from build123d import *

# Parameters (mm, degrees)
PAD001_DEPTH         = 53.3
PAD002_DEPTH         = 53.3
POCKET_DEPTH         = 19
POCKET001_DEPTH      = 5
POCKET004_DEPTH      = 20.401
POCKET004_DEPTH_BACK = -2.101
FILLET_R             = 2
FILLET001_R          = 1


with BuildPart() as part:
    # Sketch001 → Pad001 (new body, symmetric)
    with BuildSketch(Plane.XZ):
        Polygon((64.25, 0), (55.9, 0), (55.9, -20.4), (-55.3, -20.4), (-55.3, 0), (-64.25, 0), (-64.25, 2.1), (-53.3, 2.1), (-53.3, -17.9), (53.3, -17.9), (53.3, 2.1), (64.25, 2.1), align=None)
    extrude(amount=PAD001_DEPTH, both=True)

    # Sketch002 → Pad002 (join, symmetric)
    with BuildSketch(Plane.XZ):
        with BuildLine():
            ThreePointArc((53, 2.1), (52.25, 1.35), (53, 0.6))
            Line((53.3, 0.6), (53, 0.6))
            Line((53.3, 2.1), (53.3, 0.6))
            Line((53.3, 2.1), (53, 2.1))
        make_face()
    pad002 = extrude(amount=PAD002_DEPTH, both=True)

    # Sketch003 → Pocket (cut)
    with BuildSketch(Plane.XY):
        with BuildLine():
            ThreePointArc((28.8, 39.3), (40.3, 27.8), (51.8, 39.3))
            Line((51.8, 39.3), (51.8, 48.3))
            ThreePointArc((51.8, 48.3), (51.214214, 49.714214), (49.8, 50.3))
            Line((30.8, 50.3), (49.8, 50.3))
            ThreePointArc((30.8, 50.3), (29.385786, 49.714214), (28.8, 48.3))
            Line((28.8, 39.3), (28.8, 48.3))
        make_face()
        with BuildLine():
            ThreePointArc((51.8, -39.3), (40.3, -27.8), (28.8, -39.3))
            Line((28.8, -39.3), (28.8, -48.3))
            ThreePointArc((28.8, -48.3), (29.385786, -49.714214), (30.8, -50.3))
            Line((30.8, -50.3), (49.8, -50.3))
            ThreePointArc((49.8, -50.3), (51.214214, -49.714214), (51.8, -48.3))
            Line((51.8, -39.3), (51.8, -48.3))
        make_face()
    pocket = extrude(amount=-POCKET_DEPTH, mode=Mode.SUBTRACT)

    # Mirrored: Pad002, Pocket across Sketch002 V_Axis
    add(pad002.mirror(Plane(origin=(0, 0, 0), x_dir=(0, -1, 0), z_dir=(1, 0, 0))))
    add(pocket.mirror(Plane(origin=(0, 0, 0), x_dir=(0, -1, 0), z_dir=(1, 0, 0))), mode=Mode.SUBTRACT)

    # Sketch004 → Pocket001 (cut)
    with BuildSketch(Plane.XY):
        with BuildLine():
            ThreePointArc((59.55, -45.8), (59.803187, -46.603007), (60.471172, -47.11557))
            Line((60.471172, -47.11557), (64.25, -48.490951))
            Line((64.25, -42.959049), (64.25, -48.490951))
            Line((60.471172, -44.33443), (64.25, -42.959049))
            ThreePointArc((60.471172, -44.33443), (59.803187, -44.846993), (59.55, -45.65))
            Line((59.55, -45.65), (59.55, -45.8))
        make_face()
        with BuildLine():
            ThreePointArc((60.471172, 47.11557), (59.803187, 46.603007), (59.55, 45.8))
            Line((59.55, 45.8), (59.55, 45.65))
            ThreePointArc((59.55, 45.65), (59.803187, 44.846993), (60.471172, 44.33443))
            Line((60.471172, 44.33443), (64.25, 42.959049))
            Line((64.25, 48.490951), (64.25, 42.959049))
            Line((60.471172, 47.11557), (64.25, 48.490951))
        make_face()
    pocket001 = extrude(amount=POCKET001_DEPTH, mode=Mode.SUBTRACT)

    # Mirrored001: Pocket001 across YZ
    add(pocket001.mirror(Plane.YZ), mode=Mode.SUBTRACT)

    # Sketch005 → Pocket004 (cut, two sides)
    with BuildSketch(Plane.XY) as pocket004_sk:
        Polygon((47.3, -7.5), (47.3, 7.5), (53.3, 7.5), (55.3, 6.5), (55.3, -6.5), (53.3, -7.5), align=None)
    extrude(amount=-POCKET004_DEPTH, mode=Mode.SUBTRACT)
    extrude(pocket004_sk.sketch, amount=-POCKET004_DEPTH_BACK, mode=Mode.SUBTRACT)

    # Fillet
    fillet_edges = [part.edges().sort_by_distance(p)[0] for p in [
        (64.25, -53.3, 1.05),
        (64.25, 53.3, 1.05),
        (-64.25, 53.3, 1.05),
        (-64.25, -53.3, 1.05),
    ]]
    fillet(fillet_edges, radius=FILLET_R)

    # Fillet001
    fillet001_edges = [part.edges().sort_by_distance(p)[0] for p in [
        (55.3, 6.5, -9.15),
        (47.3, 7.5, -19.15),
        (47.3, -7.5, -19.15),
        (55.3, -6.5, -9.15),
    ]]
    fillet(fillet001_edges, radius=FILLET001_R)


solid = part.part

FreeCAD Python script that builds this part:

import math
import FreeCAD as App
import Part
import Sketcher
Q = App.Units.Quantity


def edges_at(feature, points):
    """Names of the edges that pass closest to the given points."""
    edges = feature.Shape.Edges
    near = lambda p: min(range(len(edges)), key=lambda i: edges[i].distToShape(Part.Vertex(*p))[0])
    return sorted({f"Edge{near(p) + 1}" for p in points})

doc = App.newDocument("Part")
body = doc.addObject("PartDesign::Body", "Body")

# Sketch on XZ plane
sketch1 = doc.addObject("Sketcher::SketchObject", "Sketch")
body.addObject(sketch1)
sketch1.AttachmentSupport = (doc.XZ_Plane, [""])
sketch1.MapMode = "FlatFace"
sketch1.addGeometry(Part.LineSegment(App.Vector(55.9, 0, 0), App.Vector(64.25, 0, 0)), False)
sketch1.addGeometry(Part.LineSegment(App.Vector(64.25, 0, 0), App.Vector(64.25, 2.1, 0)), False)
sketch1.addGeometry(Part.LineSegment(App.Vector(64.25, 2.1, 0), App.Vector(53.3, 2.1, 0)), False)
sketch1.addGeometry(Part.LineSegment(App.Vector(53.3, 2.1, 0), App.Vector(53.3, -17.9, 0)), False)
sketch1.addGeometry(Part.LineSegment(App.Vector(53.3, -17.9, 0), App.Vector(-53.3, -17.9, 0)), False)
sketch1.addGeometry(Part.LineSegment(App.Vector(-53.3, -17.9, 0), App.Vector(-53.3, 2.1, 0)), False)
sketch1.addGeometry(Part.LineSegment(App.Vector(-53.3, 2.1, 0), App.Vector(-64.25, 2.1, 0)), False)
sketch1.addGeometry(Part.LineSegment(App.Vector(-64.25, 2.1, 0), App.Vector(-64.25, 0, 0)), False)
sketch1.addGeometry(Part.LineSegment(App.Vector(-64.25, 0, 0), App.Vector(-55.3, 0, 0)), False)
sketch1.addGeometry(Part.LineSegment(App.Vector(-55.3, 0, 0), App.Vector(-55.3, -20.4, 0)), False)
sketch1.addGeometry(Part.LineSegment(App.Vector(-55.3, -20.4, 0), App.Vector(55.9, -20.4, 0)), False)
sketch1.addGeometry(Part.LineSegment(App.Vector(55.9, -20.4, 0), App.Vector(55.9, 0, 0)), False)
sketch1.addConstraint(Sketcher.Constraint("Coincident", 0, 2, 1, 1))
sketch1.addConstraint(Sketcher.Constraint("Coincident", 1, 2, 2, 1))
sketch1.addConstraint(Sketcher.Constraint("Coincident", 2, 2, 3, 1))
sketch1.addConstraint(Sketcher.Constraint("Coincident", 3, 2, 4, 1))
sketch1.addConstraint(Sketcher.Constraint("Coincident", 4, 2, 5, 1))
sketch1.addConstraint(Sketcher.Constraint("Coincident", 5, 2, 6, 1))
sketch1.addConstraint(Sketcher.Constraint("Coincident", 6, 2, 7, 1))
sketch1.addConstraint(Sketcher.Constraint("Coincident", 7, 2, 8, 1))
sketch1.addConstraint(Sketcher.Constraint("Coincident", 8, 2, 9, 1))
sketch1.addConstraint(Sketcher.Constraint("Coincident", 9, 2, 10, 1))
sketch1.addConstraint(Sketcher.Constraint("Coincident", 10, 2, 11, 1))
sketch1.addConstraint(Sketcher.Constraint("Coincident", 11, 2, 0, 1))
sketch1.addConstraint(Sketcher.Constraint("Horizontal", 0))
sketch1.addConstraint(Sketcher.Constraint("Vertical", 1))
sketch1.addConstraint(Sketcher.Constraint("Horizontal", 2))
sketch1.addConstraint(Sketcher.Constraint("Vertical", 3))
sketch1.addConstraint(Sketcher.Constraint("Horizontal", 4))
sketch1.addConstraint(Sketcher.Constraint("Vertical", 5))
sketch1.addConstraint(Sketcher.Constraint("Horizontal", 6))
sketch1.addConstraint(Sketcher.Constraint("Vertical", 7))
sketch1.addConstraint(Sketcher.Constraint("Horizontal", 8))
sketch1.addConstraint(Sketcher.Constraint("Vertical", 9))
sketch1.addConstraint(Sketcher.Constraint("Horizontal", 10))
sketch1.addConstraint(Sketcher.Constraint("Vertical", 11))
sketch1.addConstraint(Sketcher.Constraint("Symmetric", 0, 2, 7, 2, -1, 1))
sketch1.addConstraint(Sketcher.Constraint("Symmetric", 2, 2, 5, 2, -2))
sketch1.addConstraint(Sketcher.Constraint("PointOnObject", 0, 2, -1))
sketch1.addConstraint(Sketcher.Constraint("DistanceY", 3, 2, 3, 1, 20.0))
sketch1.addConstraint(Sketcher.Constraint("DistanceX", 4, 2, 4, 1, 106.6))
sketch1.addConstraint(Sketcher.Constraint("DistanceX", 10, 1, 10, 2, 111.2))
sketch1.addConstraint(Sketcher.Constraint("DistanceY", 1, 1, 1, 2, 2.1))
sketch1.addConstraint(Sketcher.Constraint("DistanceY", 9, 2, 9, 1, 20.4))
sketch1.addConstraint(Sketcher.Constraint("DistanceX", 8, 2, 5, 2, 2.0))
sketch1.addConstraint(Sketcher.Constraint("DistanceX", 0, 1, 0, 2, 8.35))
pad1 = doc.addObject("PartDesign::Pad", "Pad")
body.addObject(pad1)
pad1.Profile = sketch1
pad1.Length = 106.6
pad1.Midplane = True

# Sketch on XZ plane
sketch2 = doc.addObject("Sketcher::SketchObject", "Sketch001")
body.addObject(sketch2)
sketch2.AttachmentSupport = (doc.XZ_Plane, [""])
sketch2.MapMode = "FlatFace"
sketch2.addGeometry(Part.ArcOfCircle(Part.Circle(App.Vector(53, 1.35, 0), App.Vector(0, 0, 1), 0.75), math.radians(90), math.radians(270)), False)
sketch2.addGeometry(Part.LineSegment(App.Vector(53, 0.6, 0), App.Vector(53.3, 0.6, 0)), False)
sketch2.addGeometry(Part.LineSegment(App.Vector(53.3, 0.6, 0), App.Vector(53.3, 2.1, 0)), False)
sketch2.addGeometry(Part.LineSegment(App.Vector(53.3, 2.1, 0), App.Vector(53, 2.1, 0)), False)
sketch2.addConstraint(Sketcher.Constraint("Tangent", 0, 2, 1, 1))
sketch2.addConstraint(Sketcher.Constraint("Coincident", 1, 2, 2, 1))
sketch2.addConstraint(Sketcher.Constraint("Coincident", 2, 2, 3, 1))
sketch2.addConstraint(Sketcher.Constraint("Tangent", 3, 2, 0, 1))
sketch2.addConstraint(Sketcher.Constraint("Horizontal", 1))
sketch2.addConstraint(Sketcher.Constraint("Vertical", 2))
sketch2.addConstraint(Sketcher.Constraint("Horizontal", 3))
sketch2.addConstraint(Sketcher.Constraint("Radius", 0, 0.75))
sketch2.addConstraint(Sketcher.Constraint("DistanceX", 1, 1, 1, 2, 0.3))
sketch2.addConstraint(Sketcher.Constraint("DistanceX", -1, 1, 0, 3, 53.0))
sketch2.addConstraint(Sketcher.Constraint("DistanceY", -1, 1, 0, 2, 0.6))
pad2 = doc.addObject("PartDesign::Pad", "Pad001")
body.addObject(pad2)
pad2.Profile = sketch2
pad2.Length = 106.6
pad2.Midplane = True

# Sketch on XY plane
sketch3 = doc.addObject("Sketcher::SketchObject", "Sketch002")
body.addObject(sketch3)
sketch3.AttachmentSupport = (doc.XY_Plane, [""])
sketch3.MapMode = "FlatFace"
sketch3.addGeometry(Part.ArcOfCircle(Part.Circle(App.Vector(40.3, 39.3, 0), App.Vector(0, 0, 1), 11.5), math.radians(180), math.radians(360)), False)
sketch3.addGeometry(Part.LineSegment(App.Vector(51.8, 39.3, 0), App.Vector(51.8, 48.3, 0)), False)
sketch3.addGeometry(Part.ArcOfCircle(Part.Circle(App.Vector(49.800001, 48.300001, 0), App.Vector(0, 0, 1), 1.999999), math.radians(-0.000043), math.radians(90.000043)), False)
sketch3.addGeometry(Part.LineSegment(App.Vector(49.8, 50.3, 0), App.Vector(30.8, 50.3, 0)), False)
sketch3.addGeometry(Part.ArcOfCircle(Part.Circle(App.Vector(30.799999, 48.300001, 0), App.Vector(0, 0, 1), 1.999999), math.radians(89.999957), math.radians(180.000043)), False)
sketch3.addGeometry(Part.LineSegment(App.Vector(28.8, 48.3, 0), App.Vector(28.8, 39.3, 0)), False)
sketch3.addGeometry(Part.ArcOfCircle(Part.Circle(App.Vector(40.3, -39.3, 0), App.Vector(0, 0, 1), 11.5), math.radians(0), math.radians(180)), False)
sketch3.addGeometry(Part.LineSegment(App.Vector(28.8, -39.3, 0), App.Vector(28.8, -48.3, 0)), False)
sketch3.addGeometry(Part.ArcOfCircle(Part.Circle(App.Vector(30.799999, -48.300001, 0), App.Vector(0, 0, 1), 1.999999), math.radians(179.999957), math.radians(270.000043)), False)
sketch3.addGeometry(Part.LineSegment(App.Vector(30.8, -50.3, 0), App.Vector(49.8, -50.3, 0)), False)
sketch3.addGeometry(Part.ArcOfCircle(Part.Circle(App.Vector(49.800001, -48.300001, 0), App.Vector(0, 0, 1), 1.999999), math.radians(-90.000043), math.radians(0.000043)), False)
sketch3.addGeometry(Part.LineSegment(App.Vector(51.8, -48.3, 0), App.Vector(51.8, -39.3, 0)), False)
sketch3.addConstraint(Sketcher.Constraint("Tangent", 0, 2, 1, 1))
sketch3.addConstraint(Sketcher.Constraint("Tangent", 1, 2, 2, 1))
sketch3.addConstraint(Sketcher.Constraint("Tangent", 2, 2, 3, 1))
sketch3.addConstraint(Sketcher.Constraint("Tangent", 3, 2, 4, 1))
sketch3.addConstraint(Sketcher.Constraint("Tangent", 4, 2, 5, 1))
sketch3.addConstraint(Sketcher.Constraint("Tangent", 5, 2, 0, 1))
sketch3.addConstraint(Sketcher.Constraint("Tangent", 6, 2, 7, 1))
sketch3.addConstraint(Sketcher.Constraint("Tangent", 7, 2, 8, 1))
sketch3.addConstraint(Sketcher.Constraint("Tangent", 8, 2, 9, 1))
sketch3.addConstraint(Sketcher.Constraint("Tangent", 9, 2, 10, 1))
sketch3.addConstraint(Sketcher.Constraint("Tangent", 10, 2, 11, 1))
sketch3.addConstraint(Sketcher.Constraint("Tangent", 11, 2, 6, 1))
sketch3.addConstraint(Sketcher.Constraint("Vertical", 1))
sketch3.addConstraint(Sketcher.Constraint("Horizontal", 3))
sketch3.addConstraint(Sketcher.Constraint("Vertical", 5))
sketch3.addConstraint(Sketcher.Constraint("Vertical", 7))
sketch3.addConstraint(Sketcher.Constraint("Horizontal", 9))
sketch3.addConstraint(Sketcher.Constraint("Vertical", 11))
sketch3.addConstraint(Sketcher.Constraint("Equal", 2, 4))
sketch3.addConstraint(Sketcher.Constraint("Equal", 0, 6))
sketch3.addConstraint(Sketcher.Constraint("Equal", 4, 8))
sketch3.addConstraint(Sketcher.Constraint("Equal", 8, 10))
sketch3.addConstraint(Sketcher.Constraint("Symmetric", 0, 3, 6, 3, -1))
sketch3.addConstraint(Sketcher.Constraint("Equal", 5, 7))
sketch3.addConstraint(Sketcher.Constraint("Radius", 2, 1.999999))
sketch3.addConstraint(Sketcher.Constraint("Radius", 0, 11.5))
sketch3.addConstraint(Sketcher.Constraint("DistanceY", 1, 1, 1, 2, 9.0))
sketch3.addConstraint(Sketcher.Constraint("DistanceX", -1, 1, 0, 3, 40.3))
sketch3.addConstraint(Sketcher.Constraint("DistanceY", -1, 1, 0, 3, 39.3))
pocket1 = doc.addObject("PartDesign::Pocket", "Pocket")
body.addObject(pocket1)
pocket1.Profile = sketch3
pocket1.Length = 19
doc.recompute()

mirrored = doc.addObject("PartDesign::Mirrored", "Mirrored")
body.addObject(mirrored)
mirrored.Originals = [pad2, pocket1]
mirrored.MirrorPlane = (doc.YZ_Plane, [""])
body.Tip = mirrored

# Sketch on XY plane
sketch4 = doc.addObject("Sketcher::SketchObject", "Sketch003")
body.addObject(sketch4)
sketch4.AttachmentSupport = (doc.XY_Plane, [""])
sketch4.MapMode = "FlatFace"
sketch4.addGeometry(Part.ArcOfCircle(Part.Circle(App.Vector(60.95, -45.8, 0), App.Vector(0, 0, 1), 1.4), math.radians(179.999995), math.radians(250.000003)), False)
sketch4.addGeometry(Part.LineSegment(App.Vector(60.471172, -47.11557, 0), App.Vector(64.25, -48.490951, 0)), False)
sketch4.addGeometry(Part.LineSegment(App.Vector(64.25, -48.490951, 0), App.Vector(64.25, -42.959049, 0)), False)
sketch4.addGeometry(Part.LineSegment(App.Vector(64.25, -42.959049, 0), App.Vector(60.471172, -44.33443, 0)), False)
sketch4.addGeometry(Part.ArcOfCircle(Part.Circle(App.Vector(60.95, -45.65, 0), App.Vector(0, 0, 1), 1.4), math.radians(109.999997), math.radians(180.000005)), False)
sketch4.addGeometry(Part.LineSegment(App.Vector(59.55, -45.65, 0), App.Vector(59.55, -45.8, 0)), False)
sketch4.addGeometry(Part.ArcOfCircle(Part.Circle(App.Vector(60.95, 45.8, 0), App.Vector(0, 0, 1), 1.4), math.radians(109.999997), math.radians(180.000005)), False)
sketch4.addGeometry(Part.LineSegment(App.Vector(59.55, 45.8, 0), App.Vector(59.55, 45.65, 0)), False)
sketch4.addGeometry(Part.ArcOfCircle(Part.Circle(App.Vector(60.95, 45.65, 0), App.Vector(0, 0, 1), 1.4), math.radians(179.999995), math.radians(250.000003)), False)
sketch4.addGeometry(Part.LineSegment(App.Vector(60.471172, 44.33443, 0), App.Vector(64.25, 42.959049, 0)), False)
sketch4.addGeometry(Part.LineSegment(App.Vector(64.25, 42.959049, 0), App.Vector(64.25, 48.490951, 0)), False)
sketch4.addGeometry(Part.LineSegment(App.Vector(64.25, 48.490951, 0), App.Vector(60.471172, 47.11557, 0)), False)
sketch4.addConstraint(Sketcher.Constraint("Tangent", 0, 2, 1, 1))
sketch4.addConstraint(Sketcher.Constraint("Coincident", 1, 2, 2, 1))
sketch4.addConstraint(Sketcher.Constraint("Coincident", 2, 2, 3, 1))
sketch4.addConstraint(Sketcher.Constraint("Tangent", 3, 2, 4, 1))
sketch4.addConstraint(Sketcher.Constraint("Tangent", 4, 2, 5, 1))
sketch4.addConstraint(Sketcher.Constraint("Tangent", 5, 2, 0, 1))
sketch4.addConstraint(Sketcher.Constraint("Tangent", 6, 2, 7, 1))
sketch4.addConstraint(Sketcher.Constraint("Tangent", 7, 2, 8, 1))
sketch4.addConstraint(Sketcher.Constraint("Tangent", 8, 2, 9, 1))
sketch4.addConstraint(Sketcher.Constraint("Coincident", 9, 2, 10, 1))
sketch4.addConstraint(Sketcher.Constraint("Coincident", 10, 2, 11, 1))
sketch4.addConstraint(Sketcher.Constraint("Tangent", 11, 2, 6, 1))
sketch4.addConstraint(Sketcher.Constraint("Vertical", 2))
sketch4.addConstraint(Sketcher.Constraint("Vertical", 5))
sketch4.addConstraint(Sketcher.Constraint("Vertical", 7))
sketch4.addConstraint(Sketcher.Constraint("Vertical", 10))
sketch4.addConstraint(Sketcher.Constraint("Equal", 0, 4))
sketch4.addConstraint(Sketcher.Constraint("Equal", 4, 6))
sketch4.addConstraint(Sketcher.Constraint("Equal", 6, 8))
sketch4.addConstraint(Sketcher.Constraint("Symmetric", 0, 3, 6, 3, -1))
sketch4.addConstraint(Sketcher.Constraint("Symmetric", 3, 2, 8, 2, -1))
sketch4.addConstraint(Sketcher.Constraint("Symmetric", 1, 2, 10, 2, -1))
sketch4.addConstraint(Sketcher.Constraint("Parallel", 1, 9))
sketch4.addConstraint(Sketcher.Constraint("Radius", 0, 1.4))
sketch4.addConstraint(Sketcher.Constraint("Angle", 1, Q("-20.000001 deg")))
sketch4.addConstraint(Sketcher.Constraint("DistanceY", 5, 2, 5, 1, 0.15))
sketch4.addConstraint(Sketcher.Constraint("DistanceY", 0, 3, -1, 1, 45.8))
sketch4.addConstraint(Sketcher.Constraint("DistanceX", 0, 3, 1, 2, 3.3))
sketch4.addConstraint(Sketcher.Constraint("DistanceX", -1, 1, 0, 3, 60.95))
pocket2 = doc.addObject("PartDesign::Pocket", "Pocket001")
body.addObject(pocket2)
pocket2.Profile = sketch4
pocket2.Length = 5
pocket2.Reversed = True
doc.recompute()

mirrored2 = doc.addObject("PartDesign::Mirrored", "Mirrored001")
body.addObject(mirrored2)
mirrored2.Originals = [pocket2]
mirrored2.MirrorPlane = (doc.YZ_Plane, [""])
body.Tip = mirrored2

# Sketch on XY plane
sketch5 = doc.addObject("Sketcher::SketchObject", "Sketch004")
body.addObject(sketch5)
sketch5.AttachmentSupport = (doc.XY_Plane, [""])
sketch5.MapMode = "FlatFace"
sketch5.addGeometry(Part.LineSegment(App.Vector(47.3, 7.5, 0), App.Vector(47.3, -7.5, 0)), False)
sketch5.addGeometry(Part.LineSegment(App.Vector(47.3, -7.5, 0), App.Vector(53.3, -7.5, 0)), False)
sketch5.addGeometry(Part.LineSegment(App.Vector(53.3, -7.5, 0), App.Vector(55.3, -6.5, 0)), False)
sketch5.addGeometry(Part.LineSegment(App.Vector(55.3, -6.5, 0), App.Vector(55.3, 6.5, 0)), False)
sketch5.addGeometry(Part.LineSegment(App.Vector(55.3, 6.5, 0), App.Vector(53.3, 7.5, 0)), False)
sketch5.addGeometry(Part.LineSegment(App.Vector(53.3, 7.5, 0), App.Vector(47.3, 7.5, 0)), False)
sketch5.addConstraint(Sketcher.Constraint("Coincident", 0, 2, 1, 1))
sketch5.addConstraint(Sketcher.Constraint("Coincident", 1, 2, 2, 1))
sketch5.addConstraint(Sketcher.Constraint("Coincident", 2, 2, 3, 1))
sketch5.addConstraint(Sketcher.Constraint("Coincident", 3, 2, 4, 1))
sketch5.addConstraint(Sketcher.Constraint("Coincident", 4, 2, 5, 1))
sketch5.addConstraint(Sketcher.Constraint("Coincident", 5, 2, 0, 1))
sketch5.addConstraint(Sketcher.Constraint("Vertical", 0))
sketch5.addConstraint(Sketcher.Constraint("Horizontal", 1))
sketch5.addConstraint(Sketcher.Constraint("Vertical", 3))
sketch5.addConstraint(Sketcher.Constraint("Horizontal", 5))
sketch5.addConstraint(Sketcher.Constraint("Symmetric", 1, 2, 4, 2, -1))
sketch5.addConstraint(Sketcher.Constraint("Equal", 2, 4))
sketch5.addConstraint(Sketcher.Constraint("DistanceX", 1, 1, 1, 2, 6.0))
sketch5.addConstraint(Sketcher.Constraint("DistanceY", 0, 2, 0, 1, 15.0))
sketch5.addConstraint(Sketcher.Constraint("DistanceY", 3, 1, 3, 2, 13.0))
sketch5.addConstraint(Sketcher.Constraint("DistanceX", 1, 2, 2, 2, 2.0))
sketch5.addConstraint(Sketcher.Constraint("DistanceX", -1, 1, 0, 2, 47.3))
pocket3 = doc.addObject("PartDesign::Pocket", "Pocket002")
body.addObject(pocket3)
pocket3.Profile = sketch5
pocket3.Type = "ThroughAll"
pocket3.Midplane = True
doc.recompute()

fillet = doc.addObject("PartDesign::Fillet", "Fillet")
body.addObject(fillet)
fillet.Base = (pocket3, edges_at(pocket3, [
    (64.25, -53.3, 1.05),
    (64.25, 53.3, 1.05),
    (-64.25, 53.3, 1.05),
    (-64.25, -53.3, 1.05),
]))
fillet.Radius = 2
doc.recompute()

fillet2 = doc.addObject("PartDesign::Fillet", "Fillet001")
body.addObject(fillet2)
fillet2.Base = (fillet, edges_at(fillet, [
    (55.3, 6.5, -9.15),
    (47.3, 7.5, -19.15),
    (47.3, -7.5, -19.15),
    (55.3, -6.5, -9.15),
]))
fillet2.Radius = 1

doc.recompute()
